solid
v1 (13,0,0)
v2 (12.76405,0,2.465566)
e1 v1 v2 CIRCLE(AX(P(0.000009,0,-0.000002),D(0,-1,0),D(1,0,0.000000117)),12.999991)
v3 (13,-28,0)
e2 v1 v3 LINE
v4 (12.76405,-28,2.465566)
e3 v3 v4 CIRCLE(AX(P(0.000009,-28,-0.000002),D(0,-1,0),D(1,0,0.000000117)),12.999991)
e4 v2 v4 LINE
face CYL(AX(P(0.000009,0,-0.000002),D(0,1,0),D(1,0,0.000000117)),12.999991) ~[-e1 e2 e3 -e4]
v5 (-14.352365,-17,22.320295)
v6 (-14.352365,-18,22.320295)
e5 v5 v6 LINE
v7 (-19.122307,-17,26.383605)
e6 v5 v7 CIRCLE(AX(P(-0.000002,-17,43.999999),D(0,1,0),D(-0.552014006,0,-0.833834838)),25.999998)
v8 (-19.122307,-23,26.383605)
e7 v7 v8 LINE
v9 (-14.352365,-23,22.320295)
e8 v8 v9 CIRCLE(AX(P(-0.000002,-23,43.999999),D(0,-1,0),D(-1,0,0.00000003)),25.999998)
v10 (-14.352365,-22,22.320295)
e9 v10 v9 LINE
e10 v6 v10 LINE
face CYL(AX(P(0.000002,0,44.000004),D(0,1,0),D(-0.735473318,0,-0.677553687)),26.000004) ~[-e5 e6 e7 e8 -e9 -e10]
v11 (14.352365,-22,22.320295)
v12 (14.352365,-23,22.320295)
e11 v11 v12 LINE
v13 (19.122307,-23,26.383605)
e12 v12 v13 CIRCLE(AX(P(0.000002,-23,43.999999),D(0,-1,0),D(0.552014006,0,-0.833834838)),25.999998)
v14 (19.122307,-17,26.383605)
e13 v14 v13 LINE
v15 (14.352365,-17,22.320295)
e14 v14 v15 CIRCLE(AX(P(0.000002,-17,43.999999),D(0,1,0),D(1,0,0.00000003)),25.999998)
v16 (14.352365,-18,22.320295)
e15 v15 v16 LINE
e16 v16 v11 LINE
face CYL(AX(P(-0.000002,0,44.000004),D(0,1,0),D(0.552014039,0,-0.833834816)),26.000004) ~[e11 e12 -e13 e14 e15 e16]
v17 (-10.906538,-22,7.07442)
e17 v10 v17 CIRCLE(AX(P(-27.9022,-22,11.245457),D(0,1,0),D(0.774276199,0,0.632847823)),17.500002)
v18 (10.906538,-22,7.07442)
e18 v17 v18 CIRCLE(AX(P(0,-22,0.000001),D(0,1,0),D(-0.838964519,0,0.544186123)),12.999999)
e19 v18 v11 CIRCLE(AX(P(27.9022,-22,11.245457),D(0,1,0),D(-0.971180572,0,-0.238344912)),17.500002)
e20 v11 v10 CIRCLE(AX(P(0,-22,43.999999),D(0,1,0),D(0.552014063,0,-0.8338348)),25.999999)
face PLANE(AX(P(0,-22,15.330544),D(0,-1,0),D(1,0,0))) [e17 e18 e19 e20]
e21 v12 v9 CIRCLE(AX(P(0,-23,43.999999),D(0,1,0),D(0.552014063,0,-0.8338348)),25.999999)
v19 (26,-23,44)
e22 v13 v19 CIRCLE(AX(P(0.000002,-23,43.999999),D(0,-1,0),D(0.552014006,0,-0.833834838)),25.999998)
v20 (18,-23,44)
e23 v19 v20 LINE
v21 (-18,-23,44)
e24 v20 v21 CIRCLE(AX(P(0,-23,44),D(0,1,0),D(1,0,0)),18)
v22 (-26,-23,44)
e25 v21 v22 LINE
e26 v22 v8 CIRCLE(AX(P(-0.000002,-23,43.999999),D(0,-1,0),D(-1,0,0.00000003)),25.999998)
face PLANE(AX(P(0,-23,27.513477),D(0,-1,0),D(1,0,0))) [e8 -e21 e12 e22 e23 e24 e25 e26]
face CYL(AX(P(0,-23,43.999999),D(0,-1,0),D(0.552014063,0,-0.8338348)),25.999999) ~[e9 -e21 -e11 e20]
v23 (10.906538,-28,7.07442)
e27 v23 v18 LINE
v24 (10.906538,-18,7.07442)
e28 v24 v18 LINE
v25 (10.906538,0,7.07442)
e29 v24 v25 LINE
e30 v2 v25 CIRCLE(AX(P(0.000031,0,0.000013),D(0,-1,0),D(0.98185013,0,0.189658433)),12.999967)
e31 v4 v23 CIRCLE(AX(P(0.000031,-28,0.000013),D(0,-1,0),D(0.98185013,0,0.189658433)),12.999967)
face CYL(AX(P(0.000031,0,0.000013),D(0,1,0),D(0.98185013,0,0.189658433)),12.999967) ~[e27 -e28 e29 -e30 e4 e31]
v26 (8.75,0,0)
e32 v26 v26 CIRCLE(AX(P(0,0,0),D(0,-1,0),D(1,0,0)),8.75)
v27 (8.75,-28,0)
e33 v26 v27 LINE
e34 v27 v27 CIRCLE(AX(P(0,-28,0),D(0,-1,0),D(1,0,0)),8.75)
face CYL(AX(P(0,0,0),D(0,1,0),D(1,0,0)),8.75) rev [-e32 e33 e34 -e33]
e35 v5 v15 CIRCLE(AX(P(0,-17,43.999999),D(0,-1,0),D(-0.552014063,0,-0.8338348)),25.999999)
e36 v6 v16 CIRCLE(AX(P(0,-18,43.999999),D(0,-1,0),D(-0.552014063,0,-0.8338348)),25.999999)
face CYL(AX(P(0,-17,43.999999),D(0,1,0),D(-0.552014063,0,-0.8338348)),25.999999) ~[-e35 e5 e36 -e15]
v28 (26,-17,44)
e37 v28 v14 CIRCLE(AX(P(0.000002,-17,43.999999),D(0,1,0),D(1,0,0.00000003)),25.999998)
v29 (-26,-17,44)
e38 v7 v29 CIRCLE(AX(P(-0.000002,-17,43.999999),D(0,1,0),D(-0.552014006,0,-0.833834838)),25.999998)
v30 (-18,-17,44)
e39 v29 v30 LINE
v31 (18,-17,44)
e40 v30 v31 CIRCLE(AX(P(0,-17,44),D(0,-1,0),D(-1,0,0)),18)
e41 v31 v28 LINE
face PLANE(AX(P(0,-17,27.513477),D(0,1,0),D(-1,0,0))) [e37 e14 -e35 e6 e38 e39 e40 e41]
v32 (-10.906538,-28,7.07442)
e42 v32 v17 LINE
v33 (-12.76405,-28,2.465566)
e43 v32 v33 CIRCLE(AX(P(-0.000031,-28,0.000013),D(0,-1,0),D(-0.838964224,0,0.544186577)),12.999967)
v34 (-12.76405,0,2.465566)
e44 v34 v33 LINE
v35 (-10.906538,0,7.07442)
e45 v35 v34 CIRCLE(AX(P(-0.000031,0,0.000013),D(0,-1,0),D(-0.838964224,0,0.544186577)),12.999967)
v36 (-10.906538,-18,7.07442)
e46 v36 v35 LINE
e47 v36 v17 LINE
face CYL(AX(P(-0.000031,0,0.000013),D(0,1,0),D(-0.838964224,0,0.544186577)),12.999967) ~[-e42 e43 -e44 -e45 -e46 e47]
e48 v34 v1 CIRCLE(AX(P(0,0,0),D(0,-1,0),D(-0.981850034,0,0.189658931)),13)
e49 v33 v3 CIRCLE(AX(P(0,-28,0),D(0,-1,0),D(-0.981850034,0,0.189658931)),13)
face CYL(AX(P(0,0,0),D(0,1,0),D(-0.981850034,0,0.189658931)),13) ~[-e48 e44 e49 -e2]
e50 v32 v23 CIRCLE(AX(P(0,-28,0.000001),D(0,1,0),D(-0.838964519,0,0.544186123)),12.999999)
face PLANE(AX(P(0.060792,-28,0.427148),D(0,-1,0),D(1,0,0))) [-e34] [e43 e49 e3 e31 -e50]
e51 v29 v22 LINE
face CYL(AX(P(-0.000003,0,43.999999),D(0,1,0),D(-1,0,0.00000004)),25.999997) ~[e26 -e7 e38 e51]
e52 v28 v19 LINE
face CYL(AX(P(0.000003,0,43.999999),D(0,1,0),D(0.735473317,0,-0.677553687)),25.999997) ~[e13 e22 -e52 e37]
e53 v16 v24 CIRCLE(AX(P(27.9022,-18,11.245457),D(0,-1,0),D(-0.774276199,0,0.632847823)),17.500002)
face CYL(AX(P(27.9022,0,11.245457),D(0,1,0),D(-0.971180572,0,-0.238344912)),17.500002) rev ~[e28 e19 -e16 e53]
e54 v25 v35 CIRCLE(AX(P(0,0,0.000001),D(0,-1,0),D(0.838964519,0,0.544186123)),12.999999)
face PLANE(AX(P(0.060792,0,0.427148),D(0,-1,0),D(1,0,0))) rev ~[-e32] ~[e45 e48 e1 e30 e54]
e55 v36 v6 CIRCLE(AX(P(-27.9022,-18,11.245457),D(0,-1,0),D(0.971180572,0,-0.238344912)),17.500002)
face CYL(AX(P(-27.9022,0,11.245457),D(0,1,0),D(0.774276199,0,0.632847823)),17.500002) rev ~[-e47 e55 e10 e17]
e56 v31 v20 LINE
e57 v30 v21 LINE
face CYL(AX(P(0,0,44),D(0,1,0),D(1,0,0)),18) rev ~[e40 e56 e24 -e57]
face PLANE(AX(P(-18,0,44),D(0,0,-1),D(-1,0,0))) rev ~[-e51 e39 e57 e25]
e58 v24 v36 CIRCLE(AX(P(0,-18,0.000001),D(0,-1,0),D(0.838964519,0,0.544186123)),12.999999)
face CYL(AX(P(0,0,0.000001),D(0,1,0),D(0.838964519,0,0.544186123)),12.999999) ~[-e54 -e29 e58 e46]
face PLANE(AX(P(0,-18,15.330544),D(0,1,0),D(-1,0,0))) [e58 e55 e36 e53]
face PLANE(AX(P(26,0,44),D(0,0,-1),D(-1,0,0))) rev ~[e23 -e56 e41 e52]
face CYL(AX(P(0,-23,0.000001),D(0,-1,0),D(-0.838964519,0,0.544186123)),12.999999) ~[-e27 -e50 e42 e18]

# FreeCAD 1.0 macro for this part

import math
import FreeCAD as App
import Part
import Sketcher

V = App.Vector
Q = App.Units.Quantity

doc = App.newDocument("Part")
body = doc.addObject("PartDesign::Body", "Body")

# Sketch on XZ plane
sketch1 = body.newObject("Sketcher::SketchObject", "Sketch")
sketch1.AttachmentSupport = (doc.getObject("XZ_Plane"), [""])
sketch1.MapMode = "FlatFace"
sketch1.addGeometry(Part.ArcOfCircle(Part.Circle(V(0, 0, 0), V(0, 0, 1), 13), math.radians(169.06712), math.radians(360)), False)
sketch1.addGeometry(Part.ArcOfCircle(Part.Circle(V(0.000009, -0.000002, 0), V(0, 0, 1), 12.999991), math.radians(0.000007), math.radians(10.932895)), False)
sketch1.addGeometry(Part.ArcOfCircle(Part.Circle(V(0.000031, 0.000013, 0), V(0, 0, 1), 12.999967), math.radians(10.932851), math.radians(32.969095)), False)
sketch1.addGeometry(Part.ArcOfCircle(Part.Circle(V(27.9022, 11.245457, 0), V(0, 0, 1), 17.500002), math.radians(140.739456), math.radians(193.788876)), False)
sketch1.addGeometry(Part.ArcOfCircle(Part.Circle(V(-0.000002, 44.000004, 0), V(0, 0, 1), 26.000004), math.radians(-56.494706), math.radians(-42.652774)), False)
sketch1.addGeometry(Part.ArcOfCircle(Part.Circle(V(0.000003, 43.999999, 0), V(0, 0, 1), 25.999997), math.radians(-42.652774), math.radians(0.000002)), False)
sketch1.addGeometry(Part.LineSegment(V(26, 44, 0), V(18, 44, 0)), False)
sketch1.addGeometry(Part.ArcOfCircle(Part.Circle(V(0, 44, 0), V(0, 0, 1), 18), math.radians(180), math.radians(360)), False)
sketch1.addGeometry(Part.LineSegment(V(-18, 44, 0), V(-26, 44, 0)), False)
sketch1.addGeometry(Part.ArcOfCircle(Part.Circle(V(-0.000003, 43.999999, 0), V(0, 0, 1), 25.999997), math.radians(179.999998), math.radians(222.652774)), False)
sketch1.addGeometry(Part.ArcOfCircle(Part.Circle(V(0.000002, 44.000004, 0), V(0, 0, 1), 26.000004), math.radians(-137.347226), math.radians(-123.505294)), False)
sketch1.addGeometry(Part.ArcOfCircle(Part.Circle(V(-27.9022, 11.245457, 0), V(0, 0, 1), 17.500002), math.radians(-13.788876), math.radians(39.260544)), False)
sketch1.addGeometry(Part.ArcOfCircle(Part.Circle(V(-0.000031, 0.000013, 0), V(0, 0, 1), 12.999967), math.radians(147.030905), math.radians(169.067149)), False)
sketch1.addGeometry(Part.Circle(V(0, 0, 0), V(0, 0, 1), 8.75), False)
sketch1.addConstraint(Sketcher.Constraint("Coincident", 0, 2, 1, 1))
sketch1.addConstraint(Sketcher.Constraint("Coincident", 1, 2, 2, 1))
sketch1.addConstraint(Sketcher.Constraint("Coincident", 2, 2, 3, 2))
sketch1.addConstraint(Sketcher.Constraint("Coincident", 3, 1, 4, 1))
sketch1.addConstraint(Sketcher.Constraint("Coincident", 4, 2, 5, 1))
sketch1.addConstraint(Sketcher.Constraint("Coincident", 5, 2, 6, 1))
sketch1.addConstraint(Sketcher.Constraint("Coincident", 6, 2, 7, 2))
sketch1.addConstraint(Sketcher.Constraint("Coincident", 7, 1, 8, 1))
sketch1.addConstraint(Sketcher.Constraint("Coincident", 8, 2, 9, 1))
sketch1.addConstraint(Sketcher.Constraint("Coincident", 9, 2, 10, 1))
sketch1.addConstraint(Sketcher.Constraint("Coincident", 10, 2, 11, 2))
sketch1.addConstraint(Sketcher.Constraint("Coincident", 11, 1, 12, 1))
sketch1.addConstraint(Sketcher.Constraint("Coincident", 12, 2, 0, 1))
sketch1.addConstraint(Sketcher.Constraint("Horizontal", 6))
sketch1.addConstraint(Sketcher.Constraint("Horizontal", 8))
sketch1.addConstraint(Sketcher.Constraint("Coincident", 0, 3, -1, 1))
sketch1.addConstraint(Sketcher.Constraint("Coincident", 1, 3, -1, 1))
sketch1.addConstraint(Sketcher.Constraint("Coincident", 13, 3, -1, 1))
sketch1.addConstraint(Sketcher.Constraint("Coincident", 5, 3, 4, 3))
sketch1.addConstraint(Sketcher.Constraint("Coincident", 7, 3, 4, 3))
sketch1.addConstraint(Sketcher.Constraint("Coincident", 9, 3, 4, 3))
sketch1.addConstraint(Sketcher.Constraint("Coincident", 10, 3, 4, 3))
sketch1.addConstraint(Sketcher.Constraint("PointOnObject", 7, 3, -2))
sketch1.addConstraint(Sketcher.Constraint("PointOnObject", 0, 2, -1))
sketch1.addConstraint(Sketcher.Constraint("Radius", 0, Q("13 mm")))
sketch1.addConstraint(Sketcher.Constraint("Radius", 7, Q("18 mm")))
sketch1.addConstraint(Sketcher.Constraint("Diameter", 13, Q("17.5 mm")))
sketch1.addConstraint(Sketcher.Constraint("DistanceX", 6, 2, 6, 1, Q("8 mm")))
sketch1.addConstraint(Sketcher.Constraint("DistanceX", 8, 2, 8, 1, Q("8 mm")))
sketch1.addConstraint(Sketcher.Constraint("DistanceY", -1, 1, 5, 3, Q("43.999999 mm")))
sketch1.addConstraint(Sketcher.Constraint("DistanceY", -1, 1, 5, 2, Q("44 mm")))
sketch1.addConstraint(Sketcher.Constraint("DistanceY", -1, 1, 7, 1, Q("44 mm")))
sketch1.addConstraint(Sketcher.Constraint("Radius", 2, Q("12.999967 mm")))
sketch1.addConstraint(Sketcher.Constraint("Radius", 3, Q("17.500002 mm")))
sketch1.addConstraint(Sketcher.Constraint("Radius", 11, Q("17.500002 mm")))
sketch1.addConstraint(Sketcher.Constraint("Radius", 12, Q("12.999967 mm")))
sketch1.addConstraint(Sketcher.Constraint("DistanceX", -1, 1, 3, 3, Q("27.9022 mm")))
sketch1.addConstraint(Sketcher.Constraint("DistanceX", 11, 3, -1, 1, Q("27.9022 mm")))
sketch1.addConstraint(Sketcher.Constraint("DistanceX", -1, 1, 1, 2, Q("12.76405 mm")))
sketch1.addConstraint(Sketcher.Constraint("DistanceY", -1, 1, 2, 2, Q("7.07442 mm")))
sketch1.addConstraint(Sketcher.Constraint("DistanceX", 11, 1, -1, 1, Q("10.906538 mm")))
sketch1.addConstraint(Sketcher.Constraint("DistanceY", -1, 1, 11, 1, Q("7.07442 mm")))
sketch1.addConstraint(Sketcher.Constraint("DistanceX", 12, 2, -1, 1, Q("12.76405 mm")))
sketch1.addConstraint(Sketcher.Constraint("DistanceX", 2, 3, 3, 3, Q("27.902169 mm")))
sketch1.addConstraint(Sketcher.Constraint("DistanceX", 3, 1, 4, 2, Q("4.769942 mm")))
sketch1.addConstraint(Sketcher.Constraint("DistanceY", 11, 3, 9, 2, Q("15.138148 mm")))
pad1 = body.newObject("PartDesign::Pad", "Pad")
pad1.Profile = sketch1
pad1.Length = 28

# Sketch on XZ plane
sketch2 = body.newObject("Sketcher::SketchObject", "Sketch001")
sketch2.AttachmentSupport = (doc.getObject("XZ_Plane"), [""])
sketch2.MapMode = "FlatFace"
sketch2.AttachmentOffset = App.Placement(V(0, 0, 28), App.Rotation())
sketch2.addGeometry(Part.LineSegment(V(-18, 44, 0), V(-26, 44, 0)), False)
sketch2.addGeometry(Part.ArcOfCircle(Part.Circle(V(0, 44, 0), V(0, 0, 1), 26), math.radians(180), math.radians(236)), False)
sketch2.addGeometry(Part.ArcOfCircle(Part.Circle(V(-28, 11, 0), V(0, 0, 1), 18), math.radians(-14), math.radians(39)), False)
sketch2.addGeometry(Part.ArcOfCircle(Part.Circle(V(0, 0, 0), V(0, 0, 1), 13), math.radians(33), math.radians(147)), False)
sketch2.addGeometry(Part.ArcOfCircle(Part.Circle(V(28, 11, 0), V(0, 0, 1), 18), math.radians(141), math.radians(194)), False)
sketch2.addGeometry(Part.ArcOfCircle(Part.Circle(V(0, 44, 0), V(0, 0, 1), 26), math.radians(-56), math.radians(0)), False)
sketch2.addGeometry(Part.LineSegment(V(26, 44, 0), V(18, 44, 0)), False)
sketch2.addGeometry(Part.ArcOfCircle(Part.Circle(V(0, 44, 0), V(0, 0, 1), 18), math.radians(180), math.radians(360)), False)
sketch2.addConstraint(Sketcher.Constraint("Coincident", 0, 2, 1, 1))
sketch2.addConstraint(Sketcher.Constraint("Coincident", 1, 2, 2, 2))
sketch2.addConstraint(Sketcher.Constraint("Coincident", 2, 1, 3, 2))
sketch2.addConstraint(Sketcher.Constraint("Coincident", 3, 1, 4, 2))
sketch2.addConstraint(Sketcher.Constraint("Coincident", 4, 1, 5, 1))
sketch2.addConstraint(Sketcher.Constraint("Coincident", 5, 2, 6, 1))
sketch2.addConstraint(Sketcher.Constraint("Coincident", 6, 2, 7, 2))
sketch2.addConstraint(Sketcher.Constraint("Coincident", 7, 1, 0, 1))
sketch2.addConstraint(Sketcher.Constraint("Horizontal", 0))
sketch2.addConstraint(Sketcher.Constraint("Horizontal", 6))
sketch2.addConstraint(Sketcher.Constraint("Coincident", 3, 3, -1, 1))
sketch2.addConstraint(Sketcher.Constraint("Coincident", 5, 3, 1, 3))
sketch2.addConstraint(Sketcher.Constraint("Coincident", 7, 3, 1, 3))
sketch2.addConstraint(Sketcher.Constraint("Equal", 2, 4))
sketch2.addConstraint(Sketcher.Constraint("Equal", 1, 5))
sketch2.addConstraint(Sketcher.Constraint("Symmetric", 2, 3, 4, 3, -2))
sketch2.addConstraint(Sketcher.Constraint("Symmetric", 0, 2, 5, 2, -2))
sketch2.addConstraint(Sketcher.Constraint("Horizontal", 7, 3, 0, 2))
sketch2.addConstraint(Sketcher.Constraint("Radius", 1, Q("25.999998 mm")))
sketch2.addConstraint(Sketcher.Constraint("Radius", 3, Q("12.999999 mm")))
sketch2.addConstraint(Sketcher.Constraint("Radius", 7, Q("18 mm")))
sketch2.addConstraint(Sketcher.Constraint("DistanceY", -1, 1, 1, 3, Q("43.999999 mm")))
sketch2.addConstraint(Sketcher.Constraint("Radius", 2, Q("17.500002 mm")))
sketch2.addConstraint(Sketcher.Constraint("DistanceX", 2, 3, -1, 1, Q("27.9022 mm")))
sketch2.addConstraint(Sketcher.Constraint("DistanceX", 2, 1, -1, 1, Q("10.906538 mm")))
pocket1 = body.newObject("PartDesign::Pocket", "Pocket")
pocket1.Profile = sketch2
pocket1.Length = 5

# Sketch on XZ plane
sketch3 = body.newObject("Sketcher::SketchObject", "Sketch002")
sketch3.AttachmentSupport = (doc.getObject("XZ_Plane"), [""])
sketch3.MapMode = "FlatFace"
sketch3.addGeometry(Part.LineSegment(V(18, 44, 0), V(26, 44, 0)), False)
sketch3.addGeometry(Part.ArcOfCircle(Part.Circle(V(0, 44, 0), V(0, 0, 1), 26), math.radians(-56), math.radians(0)), False)
sketch3.addGeometry(Part.ArcOfCircle(Part.Circle(V(28, 11, 0), V(0, 0, 1), 18), math.radians(141), math.radians(194)), False)
sketch3.addGeometry(Part.ArcOfCircle(Part.Circle(V(0, 0, 0), V(0, 0, 1), 13), math.radians(33), math.radians(147)), False)
sketch3.addGeometry(Part.ArcOfCircle(Part.Circle(V(-28, 11, 0), V(0, 0, 1), 18), math.radians(-14), math.radians(39)), False)
sketch3.addGeometry(Part.ArcOfCircle(Part.Circle(V(0, 44, 0), V(0, 0, 1), 26), math.radians(180), math.radians(236)), False)
sketch3.addGeometry(Part.LineSegment(V(-26, 44, 0), V(-18, 44, 0)), False)
sketch3.addGeometry(Part.ArcOfCircle(Part.Circle(V(0, 44, 0), V(0, 0, 1), 18), math.radians(180), math.radians(360)), False)
sketch3.addConstraint(Sketcher.Constraint("Coincident", 0, 2, 1, 2))
sketch3.addConstraint(Sketcher.Constraint("Coincident", 1, 1, 2, 1))
sketch3.addConstraint(Sketcher.Constraint("Coincident", 2, 2, 3, 1))
sketch3.addConstraint(Sketcher.Constraint("Coincident", 3, 2, 4, 1))
sketch3.addConstraint(Sketcher.Constraint("Coincident", 4, 2, 5, 2))
sketch3.addConstraint(Sketcher.Constraint("Coincident", 5, 1, 6, 1))
sketch3.addConstraint(Sketcher.Constraint("Coincident", 6, 2, 7, 1))
sketch3.addConstraint(Sketcher.Constraint("Coincident", 7, 2, 0, 1))
sketch3.addConstraint(Sketcher.Constraint("Horizontal", 0))
sketch3.addConstraint(Sketcher.Constraint("Horizontal", 6))
sketch3.addConstraint(Sketcher.Constraint("Coincident", 3, 3, -1, 1))
sketch3.addConstraint(Sketcher.Constraint("Coincident", 5, 3, 1, 3))
sketch3.addConstraint(Sketcher.Constraint("Coincident", 7, 3, 1, 3))
sketch3.addConstraint(Sketcher.Constraint("Equal", 2, 4))
sketch3.addConstraint(Sketcher.Constraint("Equal", 1, 5))
sketch3.addConstraint(Sketcher.Constraint("Symmetric", 2, 3, 4, 3, -2))
sketch3.addConstraint(Sketcher.Constraint("Symmetric", 0, 2, 5, 1, -2))
sketch3.addConstraint(Sketcher.Constraint("Horizontal", 7, 3, 0, 2))
sketch3.addConstraint(Sketcher.Constraint("Radius", 1, Q("25.999998 mm")))
sketch3.addConstraint(Sketcher.Constraint("Radius", 3, Q("12.999999 mm")))
sketch3.addConstraint(Sketcher.Constraint("Radius", 7, Q("18 mm")))
sketch3.addConstraint(Sketcher.Constraint("DistanceY", -1, 1, 1, 3, Q("43.999999 mm")))
sketch3.addConstraint(Sketcher.Constraint("Radius", 2, Q("17.500002 mm")))
sketch3.addConstraint(Sketcher.Constraint("DistanceX", -1, 1, 2, 3, Q("27.9022 mm")))
sketch3.addConstraint(Sketcher.Constraint("DistanceX", -1, 1, 2, 2, Q("10.906538 mm")))
pocket2 = body.newObject("PartDesign::Pocket", "Pocket001")
pocket2.Profile = sketch3
pocket2.Length = 17
pocket2.Reversed = True

# Sketch on XZ plane
sketch4 = body.newObject("Sketcher::SketchObject", "Sketch003")
sketch4.AttachmentSupport = (doc.getObject("XZ_Plane"), [""])
sketch4.MapMode = "FlatFace"
sketch4.AttachmentOffset = App.Placement(V(0, 0, 17), App.Rotation())
sketch4.addGeometry(Part.ArcOfCircle(Part.Circle(V(0, 44, 0), V(0, 0, 1), 26), math.radians(-124), math.radians(-56)), False)
sketch4.addGeometry(Part.ArcOfCircle(Part.Circle(V(28, 11, 0), V(0, 0, 1), 18), math.radians(141), math.radians(194)), False)
sketch4.addGeometry(Part.ArcOfCircle(Part.Circle(V(0, 0, 0), V(0, 0, 1), 13), math.radians(33), math.radians(147)), False)
sketch4.addGeometry(Part.ArcOfCircle(Part.Circle(V(-28, 11, 0), V(0, 0, 1), 18), math.radians(-14), math.radians(39)), False)
sketch4.addConstraint(Sketcher.Constraint("Coincident", 0, 2, 1, 1))
sketch4.addConstraint(Sketcher.Constraint("Coincident", 1, 2, 2, 1))
sketch4.addConstraint(Sketcher.Constraint("Coincident", 2, 2, 3, 1))
sketch4.addConstraint(Sketcher.Constraint("Coincident", 3, 2, 0, 1))
sketch4.addConstraint(Sketcher.Constraint("Coincident", 2, 3, -1, 1))
sketch4.addConstraint(Sketcher.Constraint("Equal", 1, 3))
sketch4.addConstraint(Sketcher.Constraint("Symmetric", 1, 3, 3, 3, -2))
sketch4.addConstraint(Sketcher.Constraint("PointOnObject", 0, 3, -2))
sketch4.addConstraint(Sketcher.Constraint("Radius", 0, Q("25.999999 mm")))
sketch4.addConstraint(Sketcher.Constraint("Radius", 2, Q("12.999999 mm")))
sketch4.addConstraint(Sketcher.Constraint("DistanceY", -1, 1, 0, 3, Q("43.999999 mm")))
sketch4.addConstraint(Sketcher.Constraint("Radius", 1, Q("17.500002 mm")))
sketch4.addConstraint(Sketcher.Constraint("DistanceX", -1, 1, 1, 3, Q("27.9022 mm")))
sketch4.addConstraint(Sketcher.Constraint("DistanceX", -1, 1, 1, 2, Q("10.906538 mm")))
pocket3 = body.newObject("PartDesign::Pocket", "Pocket002")
pocket3.Profile = sketch4
pocket3.Length = 1
pocket3.Reversed = True

# Sketch on XZ plane
sketch5 = body.newObject("Sketcher::SketchObject", "Sketch004")
sketch5.AttachmentSupport = (doc.getObject("XZ_Plane"), [""])
sketch5.MapMode = "FlatFace"
sketch5.AttachmentOffset = App.Placement(V(0, 0, 23), App.Rotation())
sketch5.addGeometry(Part.ArcOfCircle(Part.Circle(V(0, 44, 0), V(0, 0, 1), 26), math.radians(-124), math.radians(-56)), False)
sketch5.addGeometry(Part.ArcOfCircle(Part.Circle(V(-28, 11, 0), V(0, 0, 1), 18), math.radians(-14), math.radians(39)), False)
sketch5.addGeometry(Part.ArcOfCircle(Part.Circle(V(0, 0, 0), V(0, 0, 1), 13), math.radians(33), math.radians(147)), False)
sketch5.addGeometry(Part.ArcOfCircle(Part.Circle(V(28, 11, 0), V(0, 0, 1), 18), math.radians(141), math.radians(194)), False)
sketch5.addConstraint(Sketcher.Constraint("Coincident", 0, 1, 1, 2))
sketch5.addConstraint(Sketcher.Constraint("Coincident", 1, 1, 2, 2))
sketch5.addConstraint(Sketcher.Constraint("Coincident", 2, 1, 3, 2))
sketch5.addConstraint(Sketcher.Constraint("Coincident", 3, 1, 0, 2))
sketch5.addConstraint(Sketcher.Constraint("Coincident", 2, 3, -1, 1))
sketch5.addConstraint(Sketcher.Constraint("Equal", 1, 3))
sketch5.addConstraint(Sketcher.Constraint("Symmetric", 1, 3, 3, 3, -2))
sketch5.addConstraint(Sketcher.Constraint("PointOnObject", 0, 3, -2))
sketch5.addConstraint(Sketcher.Constraint("Radius", 0, Q("25.999999 mm")))
sketch5.addConstraint(Sketcher.Constraint("Radius", 2, Q("12.999999 mm")))
sketch5.addConstraint(Sketcher.Constraint("DistanceY", -1, 1, 0, 3, Q("43.999999 mm")))
sketch5.addConstraint(Sketcher.Constraint("Radius", 1, Q("17.500002 mm")))
sketch5.addConstraint(Sketcher.Constraint("DistanceX", 1, 3, -1, 1, Q("27.9022 mm")))
sketch5.addConstraint(Sketcher.Constraint("DistanceX", 1, 1, -1, 1, Q("10.906538 mm")))
pocket4 = body.newObject("PartDesign::Pocket", "Pocket003")
pocket4.Profile = sketch5
pocket4.Length = 1

doc.recompute()
